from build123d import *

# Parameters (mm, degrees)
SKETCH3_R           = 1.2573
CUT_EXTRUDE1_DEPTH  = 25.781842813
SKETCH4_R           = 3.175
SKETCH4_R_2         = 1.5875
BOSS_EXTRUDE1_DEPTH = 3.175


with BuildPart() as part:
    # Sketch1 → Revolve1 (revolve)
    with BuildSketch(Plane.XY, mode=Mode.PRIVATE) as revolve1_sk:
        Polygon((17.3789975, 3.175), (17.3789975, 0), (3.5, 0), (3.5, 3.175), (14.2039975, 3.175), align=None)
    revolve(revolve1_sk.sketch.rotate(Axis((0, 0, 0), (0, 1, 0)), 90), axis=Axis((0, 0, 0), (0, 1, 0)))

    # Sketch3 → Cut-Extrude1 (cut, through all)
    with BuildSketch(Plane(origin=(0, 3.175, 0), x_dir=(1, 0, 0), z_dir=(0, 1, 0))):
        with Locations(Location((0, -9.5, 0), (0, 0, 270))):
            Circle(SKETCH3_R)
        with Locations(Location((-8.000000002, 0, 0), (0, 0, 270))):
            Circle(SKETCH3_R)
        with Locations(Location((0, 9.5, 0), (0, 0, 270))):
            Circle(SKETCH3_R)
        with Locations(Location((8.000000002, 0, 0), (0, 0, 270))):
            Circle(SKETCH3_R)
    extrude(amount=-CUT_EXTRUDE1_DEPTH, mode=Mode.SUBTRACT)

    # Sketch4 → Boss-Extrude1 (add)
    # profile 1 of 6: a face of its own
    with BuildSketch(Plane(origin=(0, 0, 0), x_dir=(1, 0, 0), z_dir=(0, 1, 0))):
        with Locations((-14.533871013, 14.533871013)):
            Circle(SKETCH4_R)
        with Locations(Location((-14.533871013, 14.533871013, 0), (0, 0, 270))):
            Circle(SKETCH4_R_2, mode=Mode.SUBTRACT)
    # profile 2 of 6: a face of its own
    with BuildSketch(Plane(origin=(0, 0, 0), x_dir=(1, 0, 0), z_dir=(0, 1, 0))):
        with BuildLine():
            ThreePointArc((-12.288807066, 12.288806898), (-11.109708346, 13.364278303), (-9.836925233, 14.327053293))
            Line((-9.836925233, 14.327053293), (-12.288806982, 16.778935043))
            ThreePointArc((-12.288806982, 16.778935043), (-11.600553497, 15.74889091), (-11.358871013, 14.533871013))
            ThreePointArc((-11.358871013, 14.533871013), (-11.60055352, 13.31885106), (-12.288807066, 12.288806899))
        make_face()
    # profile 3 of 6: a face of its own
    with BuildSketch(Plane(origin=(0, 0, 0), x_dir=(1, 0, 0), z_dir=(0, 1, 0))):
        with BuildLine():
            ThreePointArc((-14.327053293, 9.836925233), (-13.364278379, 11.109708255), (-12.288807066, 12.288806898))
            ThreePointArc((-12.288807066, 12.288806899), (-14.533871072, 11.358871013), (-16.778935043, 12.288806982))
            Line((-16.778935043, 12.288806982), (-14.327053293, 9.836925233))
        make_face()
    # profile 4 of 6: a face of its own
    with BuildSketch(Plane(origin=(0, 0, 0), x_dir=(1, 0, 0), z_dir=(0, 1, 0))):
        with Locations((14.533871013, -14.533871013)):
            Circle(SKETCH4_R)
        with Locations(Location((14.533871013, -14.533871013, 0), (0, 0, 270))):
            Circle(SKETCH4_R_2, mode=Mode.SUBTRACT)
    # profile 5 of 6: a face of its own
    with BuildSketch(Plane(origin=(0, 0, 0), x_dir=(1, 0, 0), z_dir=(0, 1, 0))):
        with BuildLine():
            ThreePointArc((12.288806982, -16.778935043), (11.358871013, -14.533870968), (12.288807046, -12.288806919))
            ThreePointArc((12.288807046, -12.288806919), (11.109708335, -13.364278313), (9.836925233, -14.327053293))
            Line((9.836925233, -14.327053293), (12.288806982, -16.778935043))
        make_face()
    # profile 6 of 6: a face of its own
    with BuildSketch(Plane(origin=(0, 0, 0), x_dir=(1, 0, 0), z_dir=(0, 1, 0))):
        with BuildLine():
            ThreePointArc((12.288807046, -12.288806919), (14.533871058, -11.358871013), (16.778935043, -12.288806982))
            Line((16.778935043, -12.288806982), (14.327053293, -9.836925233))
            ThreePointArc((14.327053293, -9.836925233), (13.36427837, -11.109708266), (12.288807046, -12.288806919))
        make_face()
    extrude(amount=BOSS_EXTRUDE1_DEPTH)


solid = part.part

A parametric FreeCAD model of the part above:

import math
import FreeCAD as App
import Part
import Sketcher

V = App.Vector
Q = App.Units.Quantity

doc = App.newDocument("Part")
body = doc.addObject("PartDesign::Body", "Body")

sketch1 = body.newObject("Sketcher::SketchObject", "Sketch")
sketch1.AttachmentSupport = (doc.getObject("XY_Plane"), [""])
sketch1.MapMode = "FlatFace"
sketch1.addGeometry(Part.LineSegment(V(17.4, 0, 0), V(17.4, 3.2, 0)), False)
sketch1.addGeometry(Part.LineSegment(V(17.4, 3.2, 0), V(3.5, 3.2, 0)), False)
sketch1.addGeometry(Part.LineSegment(V(3.5, 3.2, 0), V(3.5, 0, 0)), False)
sketch1.addGeometry(Part.LineSegment(V(3.5, 0, 0), V(17.4, 0, 0)), False)
sketch1.addConstraint(Sketcher.Constraint("Coincident", 0, 2, 1, 1))
sketch1.addConstraint(Sketcher.Constraint("Coincident", 1, 2, 2, 1))
sketch1.addConstraint(Sketcher.Constraint("Coincident", 2, 2, 3, 1))
sketch1.addConstraint(Sketcher.Constraint("Coincident", 3, 2, 0, 1))
sketch1.addConstraint(Sketcher.Constraint("Vertical", 0))
sketch1.addConstraint(Sketcher.Constraint("Horizontal", 1))
sketch1.addConstraint(Sketcher.Constraint("Vertical", 2))
sketch1.addConstraint(Sketcher.Constraint("Horizontal", 3))
sketch1.addConstraint(Sketcher.Constraint("PointOnObject", 2, 2, -1))
sketch1.addConstraint(Sketcher.Constraint("DistanceY", 0, 1, 0, 2, Q("0.125 in")))
sketch1.addConstraint(Sketcher.Constraint("DistanceX", -1, 1, 1, 2, Q("3.5 mm")))
sketch1.addConstraint(Sketcher.Constraint("DistanceX", 1, 2, 1, 1, Q("13.878998 mm")))
revolution = body.newObject("PartDesign::Revolution", "Revolution")
revolution.Profile = sketch1
revolution.ReferenceAxis = (sketch1, ["V_Axis"])
revolution.Angle = 360

sketch2 = body.newObject("Sketcher::SketchObject", "Sketch001")
sketch2.AttachmentSupport = (doc.getObject("XZ_Plane"), [""])
sketch2.MapMode = "FlatFace"
sketch2.AttachmentOffset = App.Placement(V(0, 0, -0.125 * 25.4), App.Rotation())
sketch2.addGeometry(Part.Circle(V(0, 9.5, 0), V(0, 0, 1), 1.3), False)
sketch2.addGeometry(Part.Circle(V(-8, 0, 0), V(0, 0, 1), 1.3), False)
sketch2.addGeometry(Part.Circle(V(0, -9.5, 0), V(0, 0, 1), 1.3), False)
sketch2.addGeometry(Part.Circle(V(8, 0, 0), V(0, 0, 1), 1.3), False)
sketch2.addConstraint(Sketcher.Constraint("Equal", 0, 1))
sketch2.addConstraint(Sketcher.Constraint("Equal", 1, 2))
sketch2.addConstraint(Sketcher.Constraint("Equal", 2, 3))
sketch2.addConstraint(Sketcher.Constraint("Symmetric", 0, 3, 2, 3, -1, 1))
sketch2.addConstraint(Sketcher.Constraint("Symmetric", 1, 3, 3, 3, -1, 1))
sketch2.addConstraint(Sketcher.Constraint("PointOnObject", 0, 3, -2))
sketch2.addConstraint(Sketcher.Constraint("PointOnObject", 1, 3, -1))
sketch2.addConstraint(Sketcher.Constraint("Diameter", 0, Q("0.099 in")))
sketch2.addConstraint(Sketcher.Constraint("DistanceY", -1, 1, 0, 3, Q("9.5 mm")))
sketch2.addConstraint(Sketcher.Constraint("DistanceX", 1, 3, -1, 1, Q("8 mm")))
pocket1 = body.newObject("PartDesign::Pocket", "Pocket")
pocket1.Profile = sketch2
pocket1.Type = "ThroughAll"
pocket1.Reversed = True

sketch3 = body.newObject("Sketcher::SketchObject", "Sketch002")
sketch3.AttachmentSupport = (doc.getObject("XZ_Plane"), [""])
sketch3.MapMode = "FlatFace"
sketch3.addGeometry(Part.ArcOfCircle(Part.Circle(V(-14.5, -14.5, 0), V(0, 0, 1), 3.2), math.radians(135), math.radians(315)), False)
sketch3.addGeometry(Part.LineSegment(V(-16.8, -12.3, 0), V(-14.3, -9.8, 0)), False)
sketch3.addGeometry(Part.ArcOfCircle(Part.Circle(V(0, 0, 0), V(0, 0, 1), 17.4), math.radians(-145.53), math.radians(-135)), False)
sketch3.addGeometry(Part.ArcOfCircle(Part.Circle(V(0, 0, 0), V(0, 0, 1), 17.4), math.radians(-135), math.radians(-124.47)), False)
sketch3.addGeometry(Part.LineSegment(V(-9.8, -14.3, 0), V(-12.3, -16.8, 0)), False)
sketch3.addGeometry(Part.Circle(V(-14.5, -14.5, 0), V(0, 0, 1), 1.6), False)
sketch3.addGeometry(Part.LineSegment(V(16.8, 12.3, 0), V(14.3, 9.8, 0)), False)
sketch3.addGeometry(Part.ArcOfCircle(Part.Circle(V(0, 0, 0), V(0, 0, 1), 17.4), math.radians(34.47), math.radians(45)), False)
sketch3.addGeometry(Part.ArcOfCircle(Part.Circle(V(0, 0, 0), V(0, 0, 1), 17.4), math.radians(45), math.radians(55.53)), False)
sketch3.addGeometry(Part.LineSegment(V(9.8, 14.3, 0), V(12.3, 16.8, 0)), False)
sketch3.addGeometry(Part.ArcOfCircle(Part.Circle(V(14.5, 14.5, 0), V(0, 0, 1), 3.2), math.radians(-45), math.radians(135)), False)
sketch3.addGeometry(Part.Circle(V(14.5, 14.5, 0), V(0, 0, 1), 1.6), False)
sketch3.addConstraint(Sketcher.Constraint("Tangent", 0, 1, 1, 1))
sketch3.addConstraint(Sketcher.Constraint("Coincident", 1, 2, 2, 1))
sketch3.addConstraint(Sketcher.Constraint("Tangent", 2, 2, 3, 1))
sketch3.addConstraint(Sketcher.Constraint("Coincident", 3, 2, 4, 1))
sketch3.addConstraint(Sketcher.Constraint("Tangent", 4, 2, 0, 2))
sketch3.addConstraint(Sketcher.Constraint("Coincident", 6, 2, 7, 1))
sketch3.addConstraint(Sketcher.Constraint("Tangent", 7, 2, 8, 1))
sketch3.addConstraint(Sketcher.Constraint("Coincident", 8, 2, 9, 1))
sketch3.addConstraint(Sketcher.Constraint("Tangent", 9, 2, 10, 2))
sketch3.addConstraint(Sketcher.Constraint("Tangent", 10, 1, 6, 1))
sketch3.addConstraint(Sketcher.Constraint("Coincident", 2, 3, -1, 1))
sketch3.addConstraint(Sketcher.Constraint("Coincident", 7, 3, -1, 1))
sketch3.addConstraint(Sketcher.Constraint("Coincident", 5, 3, 0, 3))
sketch3.addConstraint(Sketcher.Constraint("Coincident", 11, 3, 10, 3))
sketch3.addConstraint(Sketcher.Constraint("Equal", 2, 3))
sketch3.addConstraint(Sketcher.Constraint("Equal", 3, 7))
sketch3.addConstraint(Sketcher.Constraint("Equal", 7, 8))
sketch3.addConstraint(Sketcher.Constraint("Equal", 0, 10))
sketch3.addConstraint(Sketcher.Constraint("Equal", 5, 11))
sketch3.addConstraint(Sketcher.Constraint("Symmetric", 0, 3, 10, 3, -1, 1))
sketch3.addConstraint(Sketcher.Constraint("Parallel", 1, 4))
sketch3.addConstraint(Sketcher.Constraint("Parallel", 4, 6))
sketch3.addConstraint(Sketcher.Constraint("Parallel", 6, 9))
sketch3.addConstraint(Sketcher.Constraint("Horizontal", 0, 1, 2, 2))
sketch3.addConstraint(Sketcher.Constraint("Horizontal", 7, 2, 10, 1))
sketch3.addConstraint(Sketcher.Constraint("Vertical", 2, 2, 4, 2))
sketch3.addConstraint(Sketcher.Constraint("Equal", 1, 4))
sketch3.addConstraint(Sketcher.Constraint("Diameter", 5, Q("0.125 in")))
sketch3.addConstraint(Sketcher.Constraint("Angle", 1, Q("45 deg")))
sketch3.addConstraint(Sketcher.Constraint("Radius", 0, Q("0.125 in")))
sketch3.addConstraint(Sketcher.Constraint("Radius", 2, Q("17.378997 mm")))
pad1 = body.newObject("PartDesign::Pad", "Pad")
pad1.Profile = sketch3
pad1.Length = Q("0.125 in")
pad1.Reversed = True

doc.recompute()
